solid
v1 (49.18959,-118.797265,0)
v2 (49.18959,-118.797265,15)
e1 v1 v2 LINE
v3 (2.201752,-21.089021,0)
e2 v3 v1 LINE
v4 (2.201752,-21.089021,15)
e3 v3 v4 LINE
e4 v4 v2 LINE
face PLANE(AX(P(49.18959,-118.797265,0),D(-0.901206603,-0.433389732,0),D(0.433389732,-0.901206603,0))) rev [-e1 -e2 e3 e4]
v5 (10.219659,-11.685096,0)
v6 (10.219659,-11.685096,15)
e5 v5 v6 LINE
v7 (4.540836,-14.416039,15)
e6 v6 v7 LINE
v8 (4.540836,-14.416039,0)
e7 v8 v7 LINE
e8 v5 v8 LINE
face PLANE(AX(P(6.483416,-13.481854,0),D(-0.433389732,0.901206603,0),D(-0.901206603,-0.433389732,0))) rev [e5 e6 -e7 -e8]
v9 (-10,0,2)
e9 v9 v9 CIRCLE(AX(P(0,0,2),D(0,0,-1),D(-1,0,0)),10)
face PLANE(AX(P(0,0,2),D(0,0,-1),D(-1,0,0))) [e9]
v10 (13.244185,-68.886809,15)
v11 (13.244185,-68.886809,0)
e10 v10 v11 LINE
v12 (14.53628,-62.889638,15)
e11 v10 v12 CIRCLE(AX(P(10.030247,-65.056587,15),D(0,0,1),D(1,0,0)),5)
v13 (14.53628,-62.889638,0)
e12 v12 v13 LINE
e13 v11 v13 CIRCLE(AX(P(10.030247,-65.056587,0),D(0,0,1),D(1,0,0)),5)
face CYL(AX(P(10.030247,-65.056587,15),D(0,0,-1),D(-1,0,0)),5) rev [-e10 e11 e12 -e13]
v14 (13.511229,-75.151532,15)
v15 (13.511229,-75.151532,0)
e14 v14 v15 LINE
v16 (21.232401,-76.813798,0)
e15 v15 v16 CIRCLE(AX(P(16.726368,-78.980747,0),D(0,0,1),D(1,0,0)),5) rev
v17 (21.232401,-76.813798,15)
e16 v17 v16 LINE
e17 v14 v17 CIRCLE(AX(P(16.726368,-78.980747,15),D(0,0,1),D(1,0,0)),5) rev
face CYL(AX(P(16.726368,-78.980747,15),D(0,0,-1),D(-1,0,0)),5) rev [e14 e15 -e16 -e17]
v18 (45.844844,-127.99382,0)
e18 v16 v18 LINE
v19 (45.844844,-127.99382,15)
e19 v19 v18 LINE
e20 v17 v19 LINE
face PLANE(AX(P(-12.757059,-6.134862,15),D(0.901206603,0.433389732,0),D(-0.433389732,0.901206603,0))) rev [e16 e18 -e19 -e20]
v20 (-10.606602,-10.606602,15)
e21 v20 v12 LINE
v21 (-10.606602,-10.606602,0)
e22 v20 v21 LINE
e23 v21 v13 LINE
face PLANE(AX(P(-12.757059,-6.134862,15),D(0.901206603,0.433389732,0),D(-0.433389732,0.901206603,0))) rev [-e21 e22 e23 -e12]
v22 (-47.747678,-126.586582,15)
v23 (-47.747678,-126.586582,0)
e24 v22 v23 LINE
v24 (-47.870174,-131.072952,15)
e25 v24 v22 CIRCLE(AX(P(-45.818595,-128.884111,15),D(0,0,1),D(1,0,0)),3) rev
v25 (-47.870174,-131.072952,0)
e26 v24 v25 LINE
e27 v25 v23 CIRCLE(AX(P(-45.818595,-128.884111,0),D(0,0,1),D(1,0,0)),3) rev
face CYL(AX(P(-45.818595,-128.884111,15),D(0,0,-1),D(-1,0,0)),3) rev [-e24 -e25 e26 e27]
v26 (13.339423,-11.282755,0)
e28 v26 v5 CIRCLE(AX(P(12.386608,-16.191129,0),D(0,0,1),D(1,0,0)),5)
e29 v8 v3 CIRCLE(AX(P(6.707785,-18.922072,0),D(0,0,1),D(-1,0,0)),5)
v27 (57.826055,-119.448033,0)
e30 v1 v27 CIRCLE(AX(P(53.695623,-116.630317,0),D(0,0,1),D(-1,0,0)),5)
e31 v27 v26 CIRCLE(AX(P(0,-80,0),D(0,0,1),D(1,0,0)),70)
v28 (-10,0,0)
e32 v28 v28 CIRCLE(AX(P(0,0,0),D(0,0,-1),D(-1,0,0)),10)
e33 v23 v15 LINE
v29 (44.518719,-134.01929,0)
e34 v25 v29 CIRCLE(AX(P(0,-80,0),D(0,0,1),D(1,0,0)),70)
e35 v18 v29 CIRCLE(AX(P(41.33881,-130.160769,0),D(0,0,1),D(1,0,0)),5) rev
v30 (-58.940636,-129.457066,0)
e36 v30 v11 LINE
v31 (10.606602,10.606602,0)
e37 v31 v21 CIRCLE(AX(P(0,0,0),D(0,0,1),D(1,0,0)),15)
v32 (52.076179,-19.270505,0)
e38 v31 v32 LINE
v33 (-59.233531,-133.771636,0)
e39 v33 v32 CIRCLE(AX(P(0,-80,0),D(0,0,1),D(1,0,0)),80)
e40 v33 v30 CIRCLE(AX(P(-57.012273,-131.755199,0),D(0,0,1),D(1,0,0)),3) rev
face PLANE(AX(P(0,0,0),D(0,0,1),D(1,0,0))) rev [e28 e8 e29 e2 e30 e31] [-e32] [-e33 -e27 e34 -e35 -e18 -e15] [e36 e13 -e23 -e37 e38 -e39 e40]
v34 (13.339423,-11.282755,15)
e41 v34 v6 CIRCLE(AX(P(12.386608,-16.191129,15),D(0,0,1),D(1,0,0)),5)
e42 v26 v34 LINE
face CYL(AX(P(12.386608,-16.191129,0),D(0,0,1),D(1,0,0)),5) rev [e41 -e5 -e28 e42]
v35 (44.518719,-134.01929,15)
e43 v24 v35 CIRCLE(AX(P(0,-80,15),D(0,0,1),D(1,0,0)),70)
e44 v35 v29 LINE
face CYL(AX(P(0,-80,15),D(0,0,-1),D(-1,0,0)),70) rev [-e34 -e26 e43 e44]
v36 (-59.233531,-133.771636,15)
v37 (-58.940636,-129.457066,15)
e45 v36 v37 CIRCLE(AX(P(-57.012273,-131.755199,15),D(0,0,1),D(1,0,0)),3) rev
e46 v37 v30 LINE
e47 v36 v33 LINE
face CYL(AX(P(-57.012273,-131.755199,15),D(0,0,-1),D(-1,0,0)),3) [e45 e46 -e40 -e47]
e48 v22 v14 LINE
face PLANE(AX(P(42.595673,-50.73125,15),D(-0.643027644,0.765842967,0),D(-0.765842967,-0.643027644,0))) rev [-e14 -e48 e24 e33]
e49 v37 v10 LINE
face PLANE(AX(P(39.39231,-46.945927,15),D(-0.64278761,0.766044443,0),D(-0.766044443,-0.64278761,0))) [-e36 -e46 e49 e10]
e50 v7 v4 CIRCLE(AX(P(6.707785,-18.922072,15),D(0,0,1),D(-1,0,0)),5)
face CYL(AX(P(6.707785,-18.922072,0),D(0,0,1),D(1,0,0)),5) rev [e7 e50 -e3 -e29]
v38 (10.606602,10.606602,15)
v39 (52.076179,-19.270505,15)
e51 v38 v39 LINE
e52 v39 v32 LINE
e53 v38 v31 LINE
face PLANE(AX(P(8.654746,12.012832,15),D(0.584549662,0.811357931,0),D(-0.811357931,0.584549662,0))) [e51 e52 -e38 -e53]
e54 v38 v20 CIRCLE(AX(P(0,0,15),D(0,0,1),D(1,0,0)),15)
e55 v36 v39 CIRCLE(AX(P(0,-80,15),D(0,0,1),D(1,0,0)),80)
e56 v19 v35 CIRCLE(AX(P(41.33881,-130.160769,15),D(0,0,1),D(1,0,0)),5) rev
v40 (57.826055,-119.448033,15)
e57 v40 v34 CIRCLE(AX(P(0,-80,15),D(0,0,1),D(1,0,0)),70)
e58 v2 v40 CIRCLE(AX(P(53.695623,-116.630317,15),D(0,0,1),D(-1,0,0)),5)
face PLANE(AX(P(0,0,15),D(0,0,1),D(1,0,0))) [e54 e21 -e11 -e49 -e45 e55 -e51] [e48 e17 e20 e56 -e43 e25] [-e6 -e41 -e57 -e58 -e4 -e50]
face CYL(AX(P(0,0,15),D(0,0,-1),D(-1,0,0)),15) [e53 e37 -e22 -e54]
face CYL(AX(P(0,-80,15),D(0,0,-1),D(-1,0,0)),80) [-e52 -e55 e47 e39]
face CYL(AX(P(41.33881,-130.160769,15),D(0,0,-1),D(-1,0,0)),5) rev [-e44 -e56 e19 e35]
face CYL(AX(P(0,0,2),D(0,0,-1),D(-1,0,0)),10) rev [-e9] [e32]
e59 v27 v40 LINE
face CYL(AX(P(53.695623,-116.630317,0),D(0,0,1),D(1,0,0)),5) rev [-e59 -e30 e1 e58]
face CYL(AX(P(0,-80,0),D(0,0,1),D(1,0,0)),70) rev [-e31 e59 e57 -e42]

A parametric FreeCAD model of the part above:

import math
import FreeCAD as App
import Part
import Sketcher
Q = App.Units.Quantity

doc = App.newDocument("Part")
body = doc.addObject("PartDesign::Body", "Body")

# Sketch on XY plane
sketch1 = body.newObject("Sketcher::SketchObject", "Sketch")
sketch1.AttachmentSupport = (doc.getObject("XY_Plane"), [""])
sketch1.MapMode = "FlatFace"
sketch1.addGeometry([
    Part.LineSegment(App.Vector(-53.623111, -124.995133, 0), App.Vector(-58.940636, -129.457066, 0)),  # 0
    Part.ArcOfCircle(Part.Circle(App.Vector(-57.012273, -131.755199, 0), App.Vector(0, 0, 1), 3), math.radians(130), math.radians(222.232868)),  # 1
    Part.ArcOfCircle(Part.Circle(App.Vector(0, -80, 0), App.Vector(0, 0, 1), 80), math.radians(-137.767132), math.radians(49.386565)),  # 2
    Part.LineSegment(App.Vector(52.076179, -19.270505, 0), App.Vector(10.606602, 10.606602, 0)),  # 3
    Part.ArcOfCircle(Part.Circle(App.Vector(0, 0, 0), App.Vector(0, 0, 1), 15), math.radians(45), math.radians(225)),  # 4
    Part.LineSegment(App.Vector(-10.606602, -10.606602, 0), App.Vector(14.53628, -62.889638, 0)),  # 5
    Part.ArcOfCircle(Part.Circle(App.Vector(10.030247, -65.056587, 0), App.Vector(0, 0, 1), 5), math.radians(-50), math.radians(25.682874)),  # 6
    Part.LineSegment(App.Vector(13.244185, -68.886809, 0), App.Vector(-53.623111, -124.995133, 0)),  # 7
    Part.ArcOfCircle(Part.Circle(App.Vector(16.726368, -78.980747, 0), App.Vector(0, 0, 1), 5), math.radians(25.682874), math.radians(130.017956)),  # 8
    Part.LineSegment(App.Vector(21.232401, -76.813798, 0), App.Vector(45.844844, -127.99382, 0)),  # 9
    Part.ArcOfCircle(Part.Circle(App.Vector(41.33881, -130.160769, 0), App.Vector(0, 0, 1), 5), math.radians(-50.507167), math.radians(25.682874)),  # 10
    Part.ArcOfCircle(Part.Circle(App.Vector(0, -80, 0), App.Vector(0, 0, 1), 70), math.radians(-133.14599), math.radians(-50.507167)),  # 11
    Part.ArcOfCircle(Part.Circle(App.Vector(-45.818595, -128.884111, 0), App.Vector(0, 0, 1), 3), math.radians(130.017956), math.radians(226.85401)),  # 12
    Part.LineSegment(App.Vector(-47.747678, -126.586582, 0), App.Vector(13.511229, -75.151532, 0)),  # 13
], False)
sketch1.addConstraint([
    Sketcher.Constraint("Tangent", 0, 2, 1, 1),
    Sketcher.Constraint("Tangent", 1, 2, 2, 1),
    Sketcher.Constraint("Coincident", 2, 2, 3, 1),
    Sketcher.Constraint("Coincident", 3, 2, 4, 1),
    Sketcher.Constraint("Coincident", 4, 2, 5, 1),
    Sketcher.Constraint("Tangent", 5, 2, 6, 2),
    Sketcher.Constraint("Tangent", 6, 1, 7, 1),
    Sketcher.Constraint("Coincident", 7, 2, 0, 1),
    Sketcher.Constraint("Tangent", 8, 1, 9, 1),
    Sketcher.Constraint("Tangent", 9, 2, 10, 2),
    Sketcher.Constraint("Tangent", 10, 1, 11, 2),
    Sketcher.Constraint("Tangent", 11, 1, 12, 2),
    Sketcher.Constraint("Tangent", 12, 1, 13, 1),
    Sketcher.Constraint("Tangent", 13, 2, 8, 2),
    Sketcher.Constraint("Coincident", 4, 3, -1, 1),
    Sketcher.Constraint("Coincident", 11, 3, 2, 3),
    Sketcher.Constraint("Equal", 6, 8),
    Sketcher.Constraint("Equal", 8, 10),
    Sketcher.Constraint("Equal", 1, 12),
    Sketcher.Constraint("PointOnObject", 2, 3, -2),
    Sketcher.Constraint("Parallel", 0, 7),
    Sketcher.Constraint("Parallel", 5, 9),
    Sketcher.Constraint("Radius", 1, 3.0),
    Sketcher.Constraint("Radius", 2, 80.0),
    Sketcher.Constraint("Radius", 4, 15.0),
    Sketcher.Constraint("Radius", 6, 5.0),
    Sketcher.Constraint("Radius", 11, 70.0),
    Sketcher.Constraint("Angle", 0, Q("-140 deg")),
    Sketcher.Constraint("DistanceY", 2, 3, -1, 1, 80.0),
    Sketcher.Constraint("DistanceY", 1, 3, -1, 1, 131.755199),
    Sketcher.Constraint("DistanceX", -1, 1, 3, 2, 10.606602),
    Sketcher.Constraint("DistanceX", 4, 2, -1, 1, 10.606602),
    Sketcher.Constraint("DistanceX", -1, 1, 8, 1, 21.232401),
    Sketcher.Constraint("DistanceY", 8, 1, -1, 1, 76.813798),
    Sketcher.Constraint("DistanceX", 5, 2, 2, 2, 37.539899),
    Sketcher.Constraint("DistanceX", 1, 3, 11, 1, 9.142099),
    Sketcher.Constraint("DistanceX", -1, 1, 10, 3, 41.33881),
    Sketcher.Constraint("DistanceX", 7, 2, -1, 1, 53.623111),
])
pad1 = body.newObject("PartDesign::Pad", "Pad")
pad1.Profile = sketch1
pad1.Length = 15

# Sketch on XY plane
sketch2 = body.newObject("Sketcher::SketchObject", "Sketch001")
sketch2.AttachmentSupport = (doc.getObject("XY_Plane"), [""])
sketch2.MapMode = "FlatFace"
sketch2.addGeometry([
    Part.LineSegment(App.Vector(2.201752, -21.089021, 0), App.Vector(49.18959, -118.797265, 0)),  # 0
    Part.ArcOfCircle(Part.Circle(App.Vector(53.695623, -116.630317, 0), App.Vector(0, 0, 1), 5), math.radians(-154.317126), math.radians(-34.301199)),  # 1
    Part.ArcOfCircle(Part.Circle(App.Vector(0, -80, 0), App.Vector(0, 0, 1), 70), math.radians(-34.301199), math.radians(79.014347)),  # 2
    Part.ArcOfCircle(Part.Circle(App.Vector(12.386608, -16.191129, 0), App.Vector(0, 0, 1), 5), math.radians(79.014347), math.radians(115.682874)),  # 3
    Part.LineSegment(App.Vector(10.219659, -11.685096, 0), App.Vector(6.483416, -13.481854, 0)),  # 4
    Part.LineSegment(App.Vector(6.483416, -13.481854, 0), App.Vector(4.540836, -14.416039, 0)),  # 5
    Part.ArcOfCircle(Part.Circle(App.Vector(6.707785, -18.922072, 0), App.Vector(0, 0, 1), 5), math.radians(115.682874), math.radians(205.682874)),  # 6
], False)
sketch2.addConstraint([
    Sketcher.Constraint("Tangent", 0, 2, 1, 1),
    Sketcher.Constraint("Tangent", 1, 2, 2, 1),
    Sketcher.Constraint("Tangent", 2, 2, 3, 1),
    Sketcher.Constraint("Tangent", 3, 2, 4, 1),
    Sketcher.Constraint("Coincident", 4, 2, 5, 1),
    Sketcher.Constraint("Tangent", 5, 2, 6, 1),
    Sketcher.Constraint("Tangent", 6, 2, 0, 1),
    Sketcher.Constraint("Equal", 1, 3),
    Sketcher.Constraint("Equal", 3, 6),
    Sketcher.Constraint("PointOnObject", 2, 3, -2),
    Sketcher.Constraint("Perpendicular", 0, 4),
    Sketcher.Constraint("Parallel", 4, 5),
    Sketcher.Constraint("Radius", 1, 5.0),
    Sketcher.Constraint("Radius", 2, 70.0),
    Sketcher.Constraint("DistanceY", 2, 3, -1, 1, 80.0),
    Sketcher.Constraint("DistanceX", 2, 2, 1, 3, 40.356199),
    Sketcher.Constraint("DistanceY", 4, 2, 2, 2, 2.199099),
    Sketcher.Constraint("Distance", 0, 108.419362),
    Sketcher.Constraint("Distance", 5, 2.155532),
])
pocket1 = body.newObject("PartDesign::Pocket", "Pocket")
pocket1.Profile = sketch2
pocket1.Length = 15
pocket1.Reversed = True

# Sketch on XY plane
sketch3 = body.newObject("Sketcher::SketchObject", "Sketch002")
sketch3.AttachmentSupport = (doc.getObject("XY_Plane"), [""])
sketch3.MapMode = "FlatFace"
sketch3.addGeometry(Part.Circle(App.Vector(0, 0, 0), App.Vector(0, 0, 1), 10), False)
sketch3.addConstraint([
    Sketcher.Constraint("Coincident", 0, 3, -1, 1),
    Sketcher.Constraint("Diameter", 0, 20.0),
])
pocket2 = body.newObject("PartDesign::Pocket", "Pocket001")
pocket2.Profile = sketch3
pocket2.Length = 2
pocket2.Reversed = True

doc.recompute()
